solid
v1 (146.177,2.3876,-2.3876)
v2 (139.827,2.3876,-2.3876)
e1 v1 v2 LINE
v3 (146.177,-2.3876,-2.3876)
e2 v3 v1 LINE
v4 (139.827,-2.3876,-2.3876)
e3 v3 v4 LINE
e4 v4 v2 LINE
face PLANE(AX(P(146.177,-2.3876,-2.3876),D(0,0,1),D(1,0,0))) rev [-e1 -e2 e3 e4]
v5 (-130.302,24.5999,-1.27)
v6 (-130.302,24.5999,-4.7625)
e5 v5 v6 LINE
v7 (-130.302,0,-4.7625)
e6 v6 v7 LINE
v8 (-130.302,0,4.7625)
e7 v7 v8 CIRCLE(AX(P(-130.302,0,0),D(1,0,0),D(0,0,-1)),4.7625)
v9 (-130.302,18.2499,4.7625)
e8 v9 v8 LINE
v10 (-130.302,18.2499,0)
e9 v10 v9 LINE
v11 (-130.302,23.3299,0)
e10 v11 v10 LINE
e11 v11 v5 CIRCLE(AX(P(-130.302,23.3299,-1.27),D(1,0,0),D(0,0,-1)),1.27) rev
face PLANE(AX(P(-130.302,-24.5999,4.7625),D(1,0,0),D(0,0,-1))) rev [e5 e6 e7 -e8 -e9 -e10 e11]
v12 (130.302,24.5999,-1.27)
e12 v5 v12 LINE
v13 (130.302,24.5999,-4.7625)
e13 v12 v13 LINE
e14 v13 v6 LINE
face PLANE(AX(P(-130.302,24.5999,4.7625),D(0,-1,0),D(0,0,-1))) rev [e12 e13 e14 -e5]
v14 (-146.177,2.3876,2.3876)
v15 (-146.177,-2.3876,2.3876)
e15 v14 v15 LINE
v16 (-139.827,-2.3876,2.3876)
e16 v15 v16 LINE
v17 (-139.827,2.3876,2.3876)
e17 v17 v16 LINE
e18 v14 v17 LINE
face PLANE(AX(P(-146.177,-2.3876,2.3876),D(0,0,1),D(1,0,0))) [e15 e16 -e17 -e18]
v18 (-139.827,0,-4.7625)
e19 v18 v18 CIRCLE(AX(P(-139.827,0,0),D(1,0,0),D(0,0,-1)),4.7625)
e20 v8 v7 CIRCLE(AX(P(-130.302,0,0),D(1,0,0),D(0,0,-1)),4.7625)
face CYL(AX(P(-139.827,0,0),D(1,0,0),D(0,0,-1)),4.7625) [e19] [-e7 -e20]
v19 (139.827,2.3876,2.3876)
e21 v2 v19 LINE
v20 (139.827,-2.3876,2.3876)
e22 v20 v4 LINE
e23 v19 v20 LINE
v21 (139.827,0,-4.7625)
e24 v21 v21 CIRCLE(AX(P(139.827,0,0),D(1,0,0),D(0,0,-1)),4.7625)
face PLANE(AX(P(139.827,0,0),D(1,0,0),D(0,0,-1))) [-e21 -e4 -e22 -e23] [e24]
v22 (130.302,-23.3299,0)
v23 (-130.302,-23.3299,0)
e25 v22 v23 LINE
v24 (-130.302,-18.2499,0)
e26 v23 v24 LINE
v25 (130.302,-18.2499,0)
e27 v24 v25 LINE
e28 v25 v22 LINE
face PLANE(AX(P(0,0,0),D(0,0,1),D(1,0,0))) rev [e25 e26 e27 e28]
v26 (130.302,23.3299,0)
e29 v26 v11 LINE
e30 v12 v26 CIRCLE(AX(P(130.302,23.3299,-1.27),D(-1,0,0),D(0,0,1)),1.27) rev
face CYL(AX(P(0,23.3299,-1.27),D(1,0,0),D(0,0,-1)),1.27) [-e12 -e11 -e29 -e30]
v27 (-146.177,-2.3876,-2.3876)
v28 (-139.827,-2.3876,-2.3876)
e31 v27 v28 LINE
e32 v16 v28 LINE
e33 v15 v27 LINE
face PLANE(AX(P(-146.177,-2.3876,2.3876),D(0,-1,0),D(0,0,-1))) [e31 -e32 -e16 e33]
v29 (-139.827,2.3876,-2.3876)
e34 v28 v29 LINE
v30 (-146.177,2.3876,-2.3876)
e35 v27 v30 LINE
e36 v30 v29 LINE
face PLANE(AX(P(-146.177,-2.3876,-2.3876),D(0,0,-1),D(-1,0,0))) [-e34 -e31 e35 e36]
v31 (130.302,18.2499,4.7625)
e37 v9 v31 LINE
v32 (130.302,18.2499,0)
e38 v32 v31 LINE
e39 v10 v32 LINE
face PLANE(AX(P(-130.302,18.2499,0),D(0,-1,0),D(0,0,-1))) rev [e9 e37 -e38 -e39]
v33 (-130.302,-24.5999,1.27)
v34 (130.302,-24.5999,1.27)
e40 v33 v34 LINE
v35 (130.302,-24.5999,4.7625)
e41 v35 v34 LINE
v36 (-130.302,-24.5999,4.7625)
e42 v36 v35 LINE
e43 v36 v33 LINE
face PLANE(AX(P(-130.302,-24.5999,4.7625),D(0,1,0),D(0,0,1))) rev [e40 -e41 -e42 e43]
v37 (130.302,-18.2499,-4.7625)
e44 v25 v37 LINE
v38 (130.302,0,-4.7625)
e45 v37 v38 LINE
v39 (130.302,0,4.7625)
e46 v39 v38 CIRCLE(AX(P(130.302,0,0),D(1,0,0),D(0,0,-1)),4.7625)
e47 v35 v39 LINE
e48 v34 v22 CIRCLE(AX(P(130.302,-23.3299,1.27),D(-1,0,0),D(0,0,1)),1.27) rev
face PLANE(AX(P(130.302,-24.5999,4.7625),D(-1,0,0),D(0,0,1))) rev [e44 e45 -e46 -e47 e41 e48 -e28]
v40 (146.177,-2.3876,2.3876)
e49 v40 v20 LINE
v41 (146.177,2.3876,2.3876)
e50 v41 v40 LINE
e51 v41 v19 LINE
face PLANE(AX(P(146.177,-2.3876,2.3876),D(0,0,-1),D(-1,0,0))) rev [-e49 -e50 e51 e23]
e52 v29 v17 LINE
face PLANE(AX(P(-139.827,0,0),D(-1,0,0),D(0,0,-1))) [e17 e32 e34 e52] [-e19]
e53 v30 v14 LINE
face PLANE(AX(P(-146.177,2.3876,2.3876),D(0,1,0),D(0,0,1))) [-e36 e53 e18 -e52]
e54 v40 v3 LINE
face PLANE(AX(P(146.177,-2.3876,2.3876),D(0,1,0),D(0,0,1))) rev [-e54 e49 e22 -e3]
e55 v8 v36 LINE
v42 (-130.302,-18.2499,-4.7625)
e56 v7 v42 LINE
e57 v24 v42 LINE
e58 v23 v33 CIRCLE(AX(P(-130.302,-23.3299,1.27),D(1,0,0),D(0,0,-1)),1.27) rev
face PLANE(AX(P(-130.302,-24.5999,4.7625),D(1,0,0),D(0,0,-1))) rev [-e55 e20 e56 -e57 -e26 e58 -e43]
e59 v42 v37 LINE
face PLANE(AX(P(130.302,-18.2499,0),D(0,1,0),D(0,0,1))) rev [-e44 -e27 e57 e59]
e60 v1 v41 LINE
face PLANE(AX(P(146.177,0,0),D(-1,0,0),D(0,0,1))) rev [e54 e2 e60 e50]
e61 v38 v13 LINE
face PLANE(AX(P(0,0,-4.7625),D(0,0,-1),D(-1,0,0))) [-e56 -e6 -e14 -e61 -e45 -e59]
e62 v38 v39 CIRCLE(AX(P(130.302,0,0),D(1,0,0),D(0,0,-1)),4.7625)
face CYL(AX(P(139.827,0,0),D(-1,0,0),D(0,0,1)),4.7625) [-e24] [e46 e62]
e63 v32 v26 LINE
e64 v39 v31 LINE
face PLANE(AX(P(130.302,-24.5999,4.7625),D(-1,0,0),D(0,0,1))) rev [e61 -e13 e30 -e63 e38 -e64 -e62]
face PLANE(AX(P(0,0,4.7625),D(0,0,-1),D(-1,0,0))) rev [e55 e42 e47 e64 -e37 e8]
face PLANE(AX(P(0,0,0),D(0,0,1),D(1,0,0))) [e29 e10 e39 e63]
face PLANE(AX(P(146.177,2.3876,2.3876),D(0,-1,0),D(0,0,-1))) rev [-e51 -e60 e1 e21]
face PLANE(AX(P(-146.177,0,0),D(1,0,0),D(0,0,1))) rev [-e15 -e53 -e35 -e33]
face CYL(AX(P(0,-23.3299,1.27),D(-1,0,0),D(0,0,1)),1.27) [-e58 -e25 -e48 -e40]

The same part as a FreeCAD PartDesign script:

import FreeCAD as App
import Part
import Sketcher
Q = App.Units.Quantity


def edges_at(feature, points):
    """Names of the edges that pass closest to the given points."""
    edges = feature.Shape.Edges
    near = lambda p: min(range(len(edges)), key=lambda i: edges[i].distToShape(Part.Vertex(*p))[0])
    return sorted({f"Edge{near(p) + 1}" for p in points})


def add_polygon(sketch, points):
    """Adds a closed chain of lines whose ends are joined by coincident constraints."""
    first, n = sketch.GeometryCount, len(points)
    for a, b in zip(points, points[1:] + points[:1]):
        sketch.addGeometry(Part.LineSegment(App.Vector(*a, 0), App.Vector(*b, 0)), False)
    for i in range(n):
        sketch.addConstraint(Sketcher.Constraint("Coincident", first + i, 2, first + (i + 1) % n, 1))

doc = App.newDocument("Part")
body = doc.addObject("PartDesign::Body", "Body")

sketch1 = doc.addObject("Sketcher::SketchObject", "Sketch")
body.addObject(sketch1)
sketch1.AttachmentSupport = (doc.XY_Plane, [""])
sketch1.MapMode = "FlatFace"
add_polygon(sketch1, [(-130, 25), (-130, -25), (130, -25), (130, 25)])
sketch1.addConstraint([
    Sketcher.Constraint("Vertical", 0),
    Sketcher.Constraint("Horizontal", 1),
    Sketcher.Constraint("Vertical", 2),
    Sketcher.Constraint("Horizontal", 3),
    Sketcher.Constraint("Symmetric", 0, 2, 2, 2, -1, 1),
    Sketcher.Constraint("DistanceX", 1, 1, 1, 2, Q("10.26 in")),
    Sketcher.Constraint("DistanceY", 0, 2, 0, 1, Q("1.937 in")),
])
pad1 = doc.addObject("PartDesign::Pad", "Pad")
body.addObject(pad1)
pad1.Profile = sketch1
pad1.Length = Q("0.375 in")
pad1.Midplane = True

sketch2 = doc.addObject("Sketcher::SketchObject", "Sketch001")
body.addObject(sketch2)
sketch2.AttachmentSupport = (doc.YZ_Plane, [""])
sketch2.MapMode = "FlatFace"
sketch2.AttachmentOffset = App.Placement(App.Vector(0, 0, 5.13 * 25.4), App.Rotation())
sketch2.addGeometry(Part.Circle(App.Vector(0, 0, 0), App.Vector(0, 0, 1), 4.8), False)
sketch2.addConstraint([
    Sketcher.Constraint("Coincident", 0, 3, -1, 1),
    Sketcher.Constraint("Diameter", 0, Q("0.375 in")),
])
pad2 = doc.addObject("PartDesign::Pad", "Pad001")
body.addObject(pad2)
pad2.Profile = sketch2
pad2.Length = Q("0.375 in")

sketch3 = doc.addObject("Sketcher::SketchObject", "Sketch002")
body.addObject(sketch3)
sketch3.AttachmentSupport = (doc.YZ_Plane, [""])
sketch3.MapMode = "FlatFace"
sketch3.AttachmentOffset = App.Placement(App.Vector(0, 0, 5.505 * 25.4), App.Rotation())
add_polygon(sketch3, [(2.4, 2.4), (-2.4, 2.4), (-2.4, -2.4), (2.4, -2.4)])
sketch3.addConstraint([
    Sketcher.Constraint("Horizontal", 0),
    Sketcher.Constraint("Vertical", 1),
    Sketcher.Constraint("Horizontal", 2),
    Sketcher.Constraint("Vertical", 3),
    Sketcher.Constraint("Symmetric", 0, 2, 2, 2, -1, 1),
    Sketcher.Constraint("Equal", 2, 1),
    Sketcher.Constraint("DistanceX", 0, 2, 0, 1, Q("0.188 in")),
])
pad3 = doc.addObject("PartDesign::Pad", "Pad002")
body.addObject(pad3)
pad3.Profile = sketch3
pad3.Length = Q("0.25 in")
doc.recompute()

mirrored = doc.addObject("PartDesign::Mirrored", "Mirrored")
body.addObject(mirrored)
mirrored.Originals = [pad2, pad3]
mirrored.MirrorPlane = (doc.YZ_Plane, [""])
body.Tip = mirrored

sketch4 = doc.addObject("Sketcher::SketchObject", "Sketch003")
body.addObject(sketch4)
sketch4.AttachmentSupport = (doc.XY_Plane, [""])
sketch4.MapMode = "FlatFace"
sketch4.AttachmentOffset = App.Placement(App.Vector(0, 0, 0.1875 * 25.4), App.Rotation())
add_polygon(sketch4, [(-130, 25), (-130, 18), (130, 18), (130, 25)])
sketch4.addConstraint([
    Sketcher.Constraint("Vertical", 0),
    Sketcher.Constraint("Horizontal", 1),
    Sketcher.Constraint("Vertical", 2),
    Sketcher.Constraint("Horizontal", 3),
    Sketcher.Constraint("DistanceX", 1, 1, 1, 2, Q("10.26 in")),
    Sketcher.Constraint("DistanceY", 0, 2, 0, 1, Q("0.25 in")),
    Sketcher.Constraint("DistanceX", 0, 2, -1, 1, Q("5.13 in")),
    Sketcher.Constraint("DistanceY", -1, 1, 0, 2, Q("0.7185 in")),
])
pocket1 = doc.addObject("PartDesign::Pocket", "Pocket")
body.addObject(pocket1)
pocket1.Profile = sketch4
pocket1.Length = Q("0.1875 in")

sketch5 = doc.addObject("Sketcher::SketchObject", "Sketch004")
body.addObject(sketch5)
sketch5.AttachmentSupport = (doc.XY_Plane, [""])
sketch5.MapMode = "FlatFace"
sketch5.AttachmentOffset = App.Placement(App.Vector(0, 0, -0.1875 * 25.4), App.Rotation())
add_polygon(sketch5, [(130, -18), (130, -25), (-130, -25), (-130, -18)])
sketch5.addConstraint([
    Sketcher.Constraint("Vertical", 0),
    Sketcher.Constraint("Horizontal", 1),
    Sketcher.Constraint("Vertical", 2),
    Sketcher.Constraint("Horizontal", 3),
    Sketcher.Constraint("DistanceX", 1, 2, 1, 1, Q("10.26 in")),
    Sketcher.Constraint("DistanceY", 0, 2, 0, 1, Q("0.25 in")),
    Sketcher.Constraint("DistanceX", -1, 1, 0, 2, Q("5.13 in")),
    Sketcher.Constraint("DistanceY", 0, 2, -1, 1, Q("0.9685 in")),
])
pocket2 = doc.addObject("PartDesign::Pocket", "Pocket001")
body.addObject(pocket2)
pocket2.Profile = sketch5
pocket2.Length = Q("0.1875 in")
pocket2.Reversed = True
doc.recompute()

fillet = doc.addObject("PartDesign::Fillet", "Fillet")
body.addObject(fillet)
fillet.Base = (pocket2, edges_at(pocket2, [(0, 24.6, 0), (0, -24.6, 0)]))
fillet.Radius = Q("0.05 in")

doc.recompute()
